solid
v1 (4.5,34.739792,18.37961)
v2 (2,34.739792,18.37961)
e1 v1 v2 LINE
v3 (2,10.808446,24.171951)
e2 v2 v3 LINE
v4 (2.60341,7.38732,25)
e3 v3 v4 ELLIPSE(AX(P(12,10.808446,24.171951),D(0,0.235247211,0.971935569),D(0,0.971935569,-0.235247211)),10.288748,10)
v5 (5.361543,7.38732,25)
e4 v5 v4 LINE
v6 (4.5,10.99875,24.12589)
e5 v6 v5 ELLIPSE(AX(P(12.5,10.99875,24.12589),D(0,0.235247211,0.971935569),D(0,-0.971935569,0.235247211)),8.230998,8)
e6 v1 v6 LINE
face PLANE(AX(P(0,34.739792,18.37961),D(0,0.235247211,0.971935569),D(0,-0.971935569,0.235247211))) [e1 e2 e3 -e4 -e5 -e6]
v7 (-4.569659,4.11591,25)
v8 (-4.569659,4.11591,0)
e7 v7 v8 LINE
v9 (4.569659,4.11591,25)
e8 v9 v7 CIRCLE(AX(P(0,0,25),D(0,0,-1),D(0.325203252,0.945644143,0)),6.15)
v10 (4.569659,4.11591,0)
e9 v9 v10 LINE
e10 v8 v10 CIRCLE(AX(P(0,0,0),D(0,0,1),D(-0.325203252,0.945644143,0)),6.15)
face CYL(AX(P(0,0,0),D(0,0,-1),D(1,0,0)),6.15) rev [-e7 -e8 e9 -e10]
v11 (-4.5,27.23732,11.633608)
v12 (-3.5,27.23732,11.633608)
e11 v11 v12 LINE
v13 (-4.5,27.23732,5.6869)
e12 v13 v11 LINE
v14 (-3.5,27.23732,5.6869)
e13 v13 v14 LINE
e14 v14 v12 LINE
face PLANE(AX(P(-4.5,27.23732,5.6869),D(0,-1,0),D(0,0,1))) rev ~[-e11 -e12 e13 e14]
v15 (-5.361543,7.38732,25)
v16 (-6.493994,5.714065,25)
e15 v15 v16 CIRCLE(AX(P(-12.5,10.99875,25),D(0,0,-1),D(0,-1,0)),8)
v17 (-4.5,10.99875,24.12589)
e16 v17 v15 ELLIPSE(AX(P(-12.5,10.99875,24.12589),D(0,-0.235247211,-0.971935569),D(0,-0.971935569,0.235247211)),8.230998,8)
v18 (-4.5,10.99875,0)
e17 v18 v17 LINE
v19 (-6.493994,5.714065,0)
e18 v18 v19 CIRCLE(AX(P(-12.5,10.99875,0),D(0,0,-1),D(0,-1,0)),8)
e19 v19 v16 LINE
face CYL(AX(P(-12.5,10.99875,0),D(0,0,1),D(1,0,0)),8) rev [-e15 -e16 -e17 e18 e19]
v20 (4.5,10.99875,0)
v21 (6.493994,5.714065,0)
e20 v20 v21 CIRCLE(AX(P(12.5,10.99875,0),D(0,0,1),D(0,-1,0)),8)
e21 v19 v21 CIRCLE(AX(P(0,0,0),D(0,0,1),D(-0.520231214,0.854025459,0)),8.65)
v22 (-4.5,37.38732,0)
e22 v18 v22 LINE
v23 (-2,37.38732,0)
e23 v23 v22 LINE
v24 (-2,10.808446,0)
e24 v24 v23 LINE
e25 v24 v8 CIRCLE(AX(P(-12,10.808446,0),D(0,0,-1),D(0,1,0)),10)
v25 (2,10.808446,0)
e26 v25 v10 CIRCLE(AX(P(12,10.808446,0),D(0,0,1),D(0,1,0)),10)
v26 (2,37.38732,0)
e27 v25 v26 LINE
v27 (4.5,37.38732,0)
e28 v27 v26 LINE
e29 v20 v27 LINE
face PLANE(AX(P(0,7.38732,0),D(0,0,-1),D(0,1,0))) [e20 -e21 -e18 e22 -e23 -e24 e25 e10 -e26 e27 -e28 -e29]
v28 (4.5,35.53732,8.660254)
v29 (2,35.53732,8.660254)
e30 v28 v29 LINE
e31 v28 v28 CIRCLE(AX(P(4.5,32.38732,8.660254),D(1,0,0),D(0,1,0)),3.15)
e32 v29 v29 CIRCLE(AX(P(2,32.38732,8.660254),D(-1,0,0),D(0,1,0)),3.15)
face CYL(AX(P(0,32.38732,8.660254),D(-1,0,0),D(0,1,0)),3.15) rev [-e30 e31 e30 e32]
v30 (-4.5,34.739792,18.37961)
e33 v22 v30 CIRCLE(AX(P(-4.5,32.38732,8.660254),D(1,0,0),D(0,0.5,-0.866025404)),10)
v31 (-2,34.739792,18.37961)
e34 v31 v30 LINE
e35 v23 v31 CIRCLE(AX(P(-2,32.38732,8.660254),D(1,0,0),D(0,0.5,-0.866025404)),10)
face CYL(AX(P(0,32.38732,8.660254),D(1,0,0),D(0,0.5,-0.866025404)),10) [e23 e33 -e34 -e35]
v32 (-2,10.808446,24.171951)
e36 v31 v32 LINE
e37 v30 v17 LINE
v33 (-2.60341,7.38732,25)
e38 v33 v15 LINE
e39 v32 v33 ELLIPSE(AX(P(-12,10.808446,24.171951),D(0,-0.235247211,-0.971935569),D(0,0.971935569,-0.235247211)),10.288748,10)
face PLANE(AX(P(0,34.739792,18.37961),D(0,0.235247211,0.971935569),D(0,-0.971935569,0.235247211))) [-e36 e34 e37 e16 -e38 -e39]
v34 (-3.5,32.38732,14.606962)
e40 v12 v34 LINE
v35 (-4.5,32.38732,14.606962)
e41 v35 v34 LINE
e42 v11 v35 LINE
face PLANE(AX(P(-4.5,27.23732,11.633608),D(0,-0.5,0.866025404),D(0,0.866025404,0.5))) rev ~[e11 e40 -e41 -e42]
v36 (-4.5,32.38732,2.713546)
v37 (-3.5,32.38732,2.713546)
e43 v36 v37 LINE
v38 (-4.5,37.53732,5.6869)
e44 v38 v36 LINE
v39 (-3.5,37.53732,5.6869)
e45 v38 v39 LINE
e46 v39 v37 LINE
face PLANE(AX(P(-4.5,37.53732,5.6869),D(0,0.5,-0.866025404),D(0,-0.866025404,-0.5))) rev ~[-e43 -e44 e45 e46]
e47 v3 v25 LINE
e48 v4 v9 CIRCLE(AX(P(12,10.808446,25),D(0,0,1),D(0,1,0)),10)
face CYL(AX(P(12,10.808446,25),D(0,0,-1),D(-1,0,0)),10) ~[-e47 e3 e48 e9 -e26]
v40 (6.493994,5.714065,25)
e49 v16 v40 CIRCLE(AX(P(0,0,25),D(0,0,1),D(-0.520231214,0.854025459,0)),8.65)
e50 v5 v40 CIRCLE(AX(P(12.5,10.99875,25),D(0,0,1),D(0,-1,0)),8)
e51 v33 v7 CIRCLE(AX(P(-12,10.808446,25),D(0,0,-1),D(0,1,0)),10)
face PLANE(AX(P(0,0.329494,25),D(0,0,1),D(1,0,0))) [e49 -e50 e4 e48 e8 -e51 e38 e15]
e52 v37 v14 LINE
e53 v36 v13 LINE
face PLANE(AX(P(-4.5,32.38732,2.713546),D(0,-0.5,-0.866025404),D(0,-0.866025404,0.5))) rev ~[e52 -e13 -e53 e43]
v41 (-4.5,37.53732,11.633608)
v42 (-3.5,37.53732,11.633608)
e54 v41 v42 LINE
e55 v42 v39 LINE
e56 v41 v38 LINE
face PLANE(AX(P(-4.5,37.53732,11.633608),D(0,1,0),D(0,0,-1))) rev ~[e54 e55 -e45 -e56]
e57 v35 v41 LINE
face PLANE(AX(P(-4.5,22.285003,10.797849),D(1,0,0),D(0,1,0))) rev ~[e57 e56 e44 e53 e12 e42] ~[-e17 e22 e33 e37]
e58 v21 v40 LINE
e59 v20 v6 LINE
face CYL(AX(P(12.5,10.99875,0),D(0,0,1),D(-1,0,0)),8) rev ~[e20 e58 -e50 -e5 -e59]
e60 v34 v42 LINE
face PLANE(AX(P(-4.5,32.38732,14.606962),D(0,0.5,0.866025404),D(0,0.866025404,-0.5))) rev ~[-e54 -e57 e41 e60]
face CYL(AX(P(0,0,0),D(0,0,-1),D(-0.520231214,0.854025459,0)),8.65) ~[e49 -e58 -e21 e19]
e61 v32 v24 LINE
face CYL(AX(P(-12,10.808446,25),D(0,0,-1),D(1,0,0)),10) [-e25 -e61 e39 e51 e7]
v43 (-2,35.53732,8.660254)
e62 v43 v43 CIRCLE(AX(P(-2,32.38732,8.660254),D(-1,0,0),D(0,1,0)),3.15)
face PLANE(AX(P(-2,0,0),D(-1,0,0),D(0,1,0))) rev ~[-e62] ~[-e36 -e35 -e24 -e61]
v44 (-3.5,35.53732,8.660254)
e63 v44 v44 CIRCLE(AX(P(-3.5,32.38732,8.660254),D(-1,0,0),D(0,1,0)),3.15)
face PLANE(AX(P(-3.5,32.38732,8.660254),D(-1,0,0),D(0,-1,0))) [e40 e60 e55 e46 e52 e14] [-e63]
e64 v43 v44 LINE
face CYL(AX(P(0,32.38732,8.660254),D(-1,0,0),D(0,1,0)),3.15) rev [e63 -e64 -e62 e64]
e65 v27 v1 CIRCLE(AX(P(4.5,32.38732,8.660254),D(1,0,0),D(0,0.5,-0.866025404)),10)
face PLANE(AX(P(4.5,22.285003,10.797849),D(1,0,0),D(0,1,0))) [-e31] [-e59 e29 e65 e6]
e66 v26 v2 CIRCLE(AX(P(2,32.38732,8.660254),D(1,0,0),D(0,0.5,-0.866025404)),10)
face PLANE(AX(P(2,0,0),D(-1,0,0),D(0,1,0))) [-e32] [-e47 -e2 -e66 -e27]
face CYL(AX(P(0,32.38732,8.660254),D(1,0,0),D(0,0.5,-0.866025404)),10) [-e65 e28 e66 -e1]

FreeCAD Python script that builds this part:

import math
import FreeCAD as App
import Part
import Sketcher
Q = App.Units.Quantity


def edges_at(feature, points):
    """Names of the edges that pass closest to the given points."""
    edges = feature.Shape.Edges
    near = lambda p: min(range(len(edges)), key=lambda i: edges[i].distToShape(Part.Vertex(*p))[0])
    return sorted({f"Edge{near(p) + 1}" for p in points})

doc = App.newDocument("Part")
body = doc.addObject("PartDesign::Body", "Body")

sketch1 = doc.addObject("Sketcher::SketchObject", "Sketch")
body.addObject(sketch1)
sketch1.AttachmentSupport = (doc.XY_Plane, [""])
sketch1.MapMode = "FlatFace"
sketch1.addGeometry([
    Part.LineSegment(App.Vector(4.5, 7.38732, 0), App.Vector(-4.5, 7.38732, 0)),
    Part.ArcOfCircle(Part.Circle(App.Vector(0, 0, 0), App.Vector(0, 0, 1), 8.65), math.radians(121.347762), math.radians(418.652238)),
    Part.Circle(App.Vector(0, 0, 0), App.Vector(0, 0, 1), 6.15),
], False)
sketch1.addConstraint([
    Sketcher.Constraint("Coincident", 0, 1, 1, 2),
    Sketcher.Constraint("Coincident", 1, 1, 0, 2),
    Sketcher.Constraint("Horizontal", 0),
    Sketcher.Constraint("Coincident", 1, 3, -1, 1),
    Sketcher.Constraint("Coincident", 2, 3, -1, 1),
    Sketcher.Constraint("Diameter", 2, 12.3),
    Sketcher.Constraint("DistanceX", 0, 2, 0, 1, 9.0),
    Sketcher.Constraint("Radius", 1, 8.65),
])
pad1 = doc.addObject("PartDesign::Pad", "Pad")
body.addObject(pad1)
pad1.Profile = sketch1
pad1.Length = 25

sketch2 = doc.addObject("Sketcher::SketchObject", "Sketch001")
body.addObject(sketch2)
sketch2.AttachmentSupport = (doc.YZ_Plane, [""])
sketch2.MapMode = "FlatFace"
sketch2.addGeometry([
    Part.LineSegment(App.Vector(34.739792, 18.37961, 0), App.Vector(7.38732, 25, 0)),
    Part.LineSegment(App.Vector(7.38732, 25, 0), App.Vector(7.38732, 0, 0)),
    Part.LineSegment(App.Vector(7.38732, 0, 0), App.Vector(37.38732, 0, 0)),
    Part.ArcOfCircle(Part.Circle(App.Vector(32.38732, 8.660254, 0), App.Vector(0, 0, 1), 10), math.radians(-60), math.radians(76.393805)),
    Part.Circle(App.Vector(32.38732, 8.660254, 0), App.Vector(0, 0, 1), 3.15),
], False)
sketch2.addConstraint([
    Sketcher.Constraint("Coincident", 0, 2, 1, 1),
    Sketcher.Constraint("Coincident", 1, 2, 2, 1),
    Sketcher.Constraint("Coincident", 2, 2, 3, 1),
    Sketcher.Constraint("Tangent", 3, 2, 0, 1),
    Sketcher.Constraint("Vertical", 1),
    Sketcher.Constraint("Horizontal", 2),
    Sketcher.Constraint("Coincident", 4, 3, 3, 3),
    Sketcher.Constraint("PointOnObject", 1, 2, -1),
    Sketcher.Constraint("Radius", 3, 10.0),
    Sketcher.Constraint("Diameter", 4, 6.3),
    Sketcher.Constraint("DistanceX", 2, 1, 2, 2, 30.0),
    Sketcher.Constraint("DistanceY", 1, 2, 1, 1, 25.0),
    Sketcher.Constraint("DistanceX", 0, 2, 3, 3, 25.0),
    Sketcher.Constraint("DistanceX", -1, 1, 3, 3, 32.38732),
])
pad2 = doc.addObject("PartDesign::Pad", "Pad001")
body.addObject(pad2)
pad2.Profile = sketch2
pad2.Length = 9
pad2.Midplane = True

sketch3 = doc.addObject("Sketcher::SketchObject", "Sketch002")
body.addObject(sketch3)
sketch3.AttachmentSupport = (doc.XY_Plane, [""])
sketch3.MapMode = "FlatFace"
sketch3.addGeometry([
    Part.LineSegment(App.Vector(-2, 43.28516, 0), App.Vector(-2, 0, 0)),
    Part.LineSegment(App.Vector(-2, 0, 0), App.Vector(2, 0, 0)),
    Part.LineSegment(App.Vector(2, 0, 0), App.Vector(2, 43.28516, 0)),
    Part.LineSegment(App.Vector(2, 43.28516, 0), App.Vector(-2, 43.28516, 0)),
], False)
sketch3.addConstraint([
    Sketcher.Constraint("Coincident", 0, 2, 1, 1),
    Sketcher.Constraint("Coincident", 1, 2, 2, 1),
    Sketcher.Constraint("Coincident", 2, 2, 3, 1),
    Sketcher.Constraint("Coincident", 3, 2, 0, 1),
    Sketcher.Constraint("Vertical", 0),
    Sketcher.Constraint("Horizontal", 1),
    Sketcher.Constraint("Vertical", 2),
    Sketcher.Constraint("Horizontal", 3),
    Sketcher.Constraint("Symmetric", 0, 2, 1, 2, -1, 1),
    Sketcher.Constraint("DistanceX", 1, 1, 1, 2, 4.0),
    Sketcher.Constraint("DistanceY", 0, 2, 0, 1, 43.28516),
])
pocket1 = doc.addObject("PartDesign::Pocket", "Pocket")
body.addObject(pocket1)
pocket1.Profile = sketch3
pocket1.Type = "ThroughAll"
pocket1.Reversed = True
doc.recompute()

fillet = doc.addObject("PartDesign::Fillet", "Fillet")
body.addObject(fillet)
fillet.Base = (pocket1, edges_at(pocket1, [(4.5, 7.387, 12.5), (-4.5, 7.387, 12.5)]))
fillet.Radius = 8
doc.recompute()

fillet2 = doc.addObject("PartDesign::Fillet", "Fillet001")
body.addObject(fillet2)
fillet2.Base = (fillet, edges_at(fillet, [(-2, 5.816, 12.5), (2, 5.816, 12.5)]))
fillet2.Radius = 10

sketch4 = doc.addObject("Sketcher::SketchObject", "Sketch003")
body.addObject(sketch4)
sketch4.AttachmentSupport = (doc.YZ_Plane, [""])
sketch4.MapMode = "FlatFace"
sketch4.AttachmentOffset = App.Placement(App.Vector(0, 0, -4.5), App.Rotation())
sketch4.addGeometry([
    Part.LineSegment(App.Vector(37.53732, 11.633608, 0), App.Vector(37.53732, 5.6869, 0)),
    Part.LineSegment(App.Vector(37.53732, 5.6869, 0), App.Vector(32.38732, 2.713546, 0)),
    Part.LineSegment(App.Vector(32.38732, 2.713546, 0), App.Vector(27.23732, 5.6869, 0)),
    Part.LineSegment(App.Vector(27.23732, 5.6869, 0), App.Vector(27.23732, 11.633608, 0)),
    Part.LineSegment(App.Vector(27.23732, 11.633608, 0), App.Vector(32.38732, 14.606962, 0)),
    Part.LineSegment(App.Vector(32.38732, 14.606962, 0), App.Vector(37.53732, 11.633608, 0)),
    Part.Circle(App.Vector(32.38732, 8.660254, 0), App.Vector(0, 0, 1), 3.15),
], False)
sketch4.addConstraint([
    Sketcher.Constraint("Coincident", 0, 2, 1, 1),
    Sketcher.Constraint("Coincident", 1, 2, 2, 1),
    Sketcher.Constraint("Coincident", 2, 2, 3, 1),
    Sketcher.Constraint("Coincident", 3, 2, 4, 1),
    Sketcher.Constraint("Coincident", 4, 2, 5, 1),
    Sketcher.Constraint("Coincident", 5, 2, 0, 1),
    Sketcher.Constraint("Vertical", 0),
    Sketcher.Constraint("Vertical", 3),
    Sketcher.Constraint("Parallel", 1, 4),
    Sketcher.Constraint("Parallel", 2, 5),
    Sketcher.Constraint("Horizontal", 0, 2, 2, 2),
    Sketcher.Constraint("Horizontal", 3, 2, 5, 2),
    Sketcher.Constraint("Vertical", 6, 3, 1, 2),
    Sketcher.Constraint("Vertical", 1, 2, 4, 2),
    Sketcher.Constraint("Diameter", 6, 6.3),
    Sketcher.Constraint("Angle", 1, Q("-150 deg")),
    Sketcher.Constraint("DistanceX", 2, 2, 0, 2, 10.3),
    Sketcher.Constraint("DistanceY", -1, 1, 0, 2, 5.6869),
    Sketcher.Constraint("DistanceY", 0, 2, 0, 1, 5.946708),
    Sketcher.Constraint("DistanceX", -1, 1, 6, 3, 32.38732),
    Sketcher.Constraint("DistanceY", -1, 1, 6, 3, 8.660254),
])
pocket2 = doc.addObject("PartDesign::Pocket", "Pocket001")
body.addObject(pocket2)
pocket2.Profile = sketch4
pocket2.Length = 1
pocket2.Reversed = True

doc.recompute()
